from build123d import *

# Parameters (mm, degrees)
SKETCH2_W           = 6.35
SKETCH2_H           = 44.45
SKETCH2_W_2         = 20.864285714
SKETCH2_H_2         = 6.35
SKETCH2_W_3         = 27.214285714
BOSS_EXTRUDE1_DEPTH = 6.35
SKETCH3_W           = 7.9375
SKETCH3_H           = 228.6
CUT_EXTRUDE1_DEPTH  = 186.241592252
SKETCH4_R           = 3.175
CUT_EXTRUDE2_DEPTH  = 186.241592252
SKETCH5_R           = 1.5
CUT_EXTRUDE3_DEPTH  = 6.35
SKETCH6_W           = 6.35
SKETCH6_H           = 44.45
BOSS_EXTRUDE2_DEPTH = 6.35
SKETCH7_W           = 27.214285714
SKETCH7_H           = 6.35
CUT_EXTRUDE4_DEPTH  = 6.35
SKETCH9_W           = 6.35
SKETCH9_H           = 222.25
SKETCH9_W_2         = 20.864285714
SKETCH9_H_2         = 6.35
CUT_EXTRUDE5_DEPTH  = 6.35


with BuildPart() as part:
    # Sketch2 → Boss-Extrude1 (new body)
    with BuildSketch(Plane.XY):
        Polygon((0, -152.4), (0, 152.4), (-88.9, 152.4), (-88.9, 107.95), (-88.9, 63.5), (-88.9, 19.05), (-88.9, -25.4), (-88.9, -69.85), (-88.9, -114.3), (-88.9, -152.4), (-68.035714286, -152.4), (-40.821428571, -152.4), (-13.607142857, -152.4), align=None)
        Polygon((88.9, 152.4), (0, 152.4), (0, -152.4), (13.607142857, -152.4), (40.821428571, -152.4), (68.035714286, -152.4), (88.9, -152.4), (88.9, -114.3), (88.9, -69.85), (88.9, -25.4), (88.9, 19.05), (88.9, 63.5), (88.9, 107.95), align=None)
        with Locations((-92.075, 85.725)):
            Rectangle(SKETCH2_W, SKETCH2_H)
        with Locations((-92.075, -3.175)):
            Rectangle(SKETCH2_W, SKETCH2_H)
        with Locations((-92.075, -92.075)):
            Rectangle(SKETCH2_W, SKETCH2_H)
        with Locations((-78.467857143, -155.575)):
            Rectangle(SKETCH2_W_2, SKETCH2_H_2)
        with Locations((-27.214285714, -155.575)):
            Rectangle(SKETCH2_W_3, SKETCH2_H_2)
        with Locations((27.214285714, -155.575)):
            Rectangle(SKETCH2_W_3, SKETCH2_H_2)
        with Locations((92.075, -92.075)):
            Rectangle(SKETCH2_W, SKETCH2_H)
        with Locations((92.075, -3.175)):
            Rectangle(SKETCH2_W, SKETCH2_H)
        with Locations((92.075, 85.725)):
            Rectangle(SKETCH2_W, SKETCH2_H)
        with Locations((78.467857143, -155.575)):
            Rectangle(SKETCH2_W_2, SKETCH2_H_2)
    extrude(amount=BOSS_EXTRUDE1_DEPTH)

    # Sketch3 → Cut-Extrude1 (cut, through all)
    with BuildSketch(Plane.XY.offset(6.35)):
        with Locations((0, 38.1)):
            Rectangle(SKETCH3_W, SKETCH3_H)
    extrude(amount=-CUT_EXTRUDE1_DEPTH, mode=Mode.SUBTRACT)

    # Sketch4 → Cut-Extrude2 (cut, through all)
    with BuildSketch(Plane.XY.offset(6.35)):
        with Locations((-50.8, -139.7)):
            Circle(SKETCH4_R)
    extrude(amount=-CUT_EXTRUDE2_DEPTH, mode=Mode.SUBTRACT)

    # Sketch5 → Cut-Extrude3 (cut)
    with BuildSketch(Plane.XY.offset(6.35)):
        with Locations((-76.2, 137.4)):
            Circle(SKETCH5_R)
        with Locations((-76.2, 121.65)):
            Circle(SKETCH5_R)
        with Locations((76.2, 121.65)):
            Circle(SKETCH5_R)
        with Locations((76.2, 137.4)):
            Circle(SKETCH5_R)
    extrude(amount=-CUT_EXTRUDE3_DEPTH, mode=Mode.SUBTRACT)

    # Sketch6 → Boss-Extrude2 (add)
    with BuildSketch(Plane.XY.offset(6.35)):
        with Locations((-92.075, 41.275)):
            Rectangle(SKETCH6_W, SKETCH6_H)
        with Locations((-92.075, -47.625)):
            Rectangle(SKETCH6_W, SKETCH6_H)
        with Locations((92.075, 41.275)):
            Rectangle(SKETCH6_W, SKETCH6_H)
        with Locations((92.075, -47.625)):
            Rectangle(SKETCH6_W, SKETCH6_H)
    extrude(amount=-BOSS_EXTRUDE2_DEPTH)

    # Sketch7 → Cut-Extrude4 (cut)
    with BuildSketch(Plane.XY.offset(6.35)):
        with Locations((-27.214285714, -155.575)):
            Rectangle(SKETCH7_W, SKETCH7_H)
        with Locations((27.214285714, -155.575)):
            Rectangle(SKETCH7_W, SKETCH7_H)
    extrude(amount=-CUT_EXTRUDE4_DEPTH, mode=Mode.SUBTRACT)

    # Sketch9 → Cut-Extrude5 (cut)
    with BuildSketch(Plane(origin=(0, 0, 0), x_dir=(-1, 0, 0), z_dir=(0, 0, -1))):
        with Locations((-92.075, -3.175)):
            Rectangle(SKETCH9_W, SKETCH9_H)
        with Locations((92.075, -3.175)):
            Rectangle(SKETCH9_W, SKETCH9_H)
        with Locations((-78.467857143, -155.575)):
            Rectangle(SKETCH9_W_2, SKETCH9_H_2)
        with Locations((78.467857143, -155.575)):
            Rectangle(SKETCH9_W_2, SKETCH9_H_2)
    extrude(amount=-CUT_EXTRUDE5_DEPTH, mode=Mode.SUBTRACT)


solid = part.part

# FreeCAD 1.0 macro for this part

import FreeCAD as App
import Part
import Sketcher

V = App.Vector
Q = App.Units.Quantity

doc = App.newDocument("Part")
body = doc.addObject("PartDesign::Body", "Body")

sketch1 = doc.addObject("Sketcher::SketchObject", "Sketch")
body.addObject(sketch1)
sketch1.AttachmentSupport = (doc.XY_Plane, [""])
sketch1.MapMode = "FlatFace"
sketch1.addGeometry([
    Part.LineSegment(V(-89, 152, 0), V(-89, 108, 0)),
    Part.LineSegment(V(-89, 108, 0), V(-95, 108, 0)),
    Part.LineSegment(V(-95, 108, 0), V(-95, 64, 0)),
    Part.LineSegment(V(-95, 64, 0), V(-89, 64, 0)),
    Part.LineSegment(V(-89, 64, 0), V(-89, 19, 0)),
    Part.LineSegment(V(-89, 19, 0), V(-95, 19, 0)),
    Part.LineSegment(V(-95, 19, 0), V(-95, -25, 0)),
    Part.LineSegment(V(-95, -25, 0), V(-89, -25, 0)),
    Part.LineSegment(V(-89, -25, 0), V(-89, -70, 0)),
    Part.LineSegment(V(-89, -70, 0), V(-95, -70, 0)),
    Part.LineSegment(V(-95, -70, 0), V(-95, -114, 0)),
    Part.LineSegment(V(-95, -114, 0), V(-89, -114, 0)),
    Part.LineSegment(V(-89, -114, 0), V(-89, -159, 0)),
    Part.LineSegment(V(-89, -159, 0), V(-68, -159, 0)),
    Part.LineSegment(V(-68, -159, 0), V(-68, -152, 0)),
    Part.LineSegment(V(-68, -152, 0), V(-41, -152, 0)),
    Part.LineSegment(V(-41, -152, 0), V(-41, -159, 0)),
    Part.LineSegment(V(-41, -159, 0), V(-14, -159, 0)),
    Part.LineSegment(V(-14, -159, 0), V(-14, -152, 0)),
    Part.LineSegment(V(-14, -152, 0), V(14, -152, 0)),
    Part.LineSegment(V(14, -152, 0), V(14, -159, 0)),
    Part.LineSegment(V(14, -159, 0), V(41, -159, 0)),
    Part.LineSegment(V(41, -159, 0), V(41, -152, 0)),
    Part.LineSegment(V(41, -152, 0), V(68, -152, 0)),
    Part.LineSegment(V(68, -152, 0), V(68, -159, 0)),
    Part.LineSegment(V(68, -159, 0), V(89, -159, 0)),
    Part.LineSegment(V(89, -159, 0), V(89, -114, 0)),
    Part.LineSegment(V(89, -114, 0), V(95, -114, 0)),
    Part.LineSegment(V(95, -114, 0), V(95, -70, 0)),
    Part.LineSegment(V(95, -70, 0), V(89, -70, 0)),
    Part.LineSegment(V(89, -70, 0), V(89, -25, 0)),
    Part.LineSegment(V(89, -25, 0), V(95, -25, 0)),
    Part.LineSegment(V(95, -25, 0), V(95, 19, 0)),
    Part.LineSegment(V(95, 19, 0), V(89, 19, 0)),
    Part.LineSegment(V(89, 19, 0), V(89, 64, 0)),
    Part.LineSegment(V(89, 64, 0), V(95, 64, 0)),
    Part.LineSegment(V(95, 64, 0), V(95, 108, 0)),
    Part.LineSegment(V(95, 108, 0), V(89, 108, 0)),
    Part.LineSegment(V(89, 108, 0), V(89, 152, 0)),
    Part.LineSegment(V(89, 152, 0), V(-89, 152, 0)),
], False)
sketch1.addConstraint([
    Sketcher.Constraint("Coincident", 0, 2, 1, 1),
    Sketcher.Constraint("Coincident", 1, 2, 2, 1),
    Sketcher.Constraint("Coincident", 2, 2, 3, 1),
    Sketcher.Constraint("Coincident", 3, 2, 4, 1),
    Sketcher.Constraint("Coincident", 4, 2, 5, 1),
    Sketcher.Constraint("Coincident", 5, 2, 6, 1),
    Sketcher.Constraint("Coincident", 6, 2, 7, 1),
    Sketcher.Constraint("Coincident", 7, 2, 8, 1),
    Sketcher.Constraint("Coincident", 8, 2, 9, 1),
    Sketcher.Constraint("Coincident", 9, 2, 10, 1),
    Sketcher.Constraint("Coincident", 10, 2, 11, 1),
    Sketcher.Constraint("Coincident", 11, 2, 12, 1),
    Sketcher.Constraint("Coincident", 12, 2, 13, 1),
    Sketcher.Constraint("Coincident", 13, 2, 14, 1),
    Sketcher.Constraint("Coincident", 14, 2, 15, 1),
    Sketcher.Constraint("Coincident", 15, 2, 16, 1),
    Sketcher.Constraint("Coincident", 16, 2, 17, 1),
    Sketcher.Constraint("Coincident", 17, 2, 18, 1),
    Sketcher.Constraint("Coincident", 18, 2, 19, 1),
    Sketcher.Constraint("Coincident", 19, 2, 20, 1),
    Sketcher.Constraint("Coincident", 20, 2, 21, 1),
    Sketcher.Constraint("Coincident", 21, 2, 22, 1),
    Sketcher.Constraint("Coincident", 22, 2, 23, 1),
    Sketcher.Constraint("Coincident", 23, 2, 24, 1),
    Sketcher.Constraint("Coincident", 24, 2, 25, 1),
    Sketcher.Constraint("Coincident", 25, 2, 26, 1),
    Sketcher.Constraint("Coincident", 26, 2, 27, 1),
    Sketcher.Constraint("Coincident", 27, 2, 28, 1),
    Sketcher.Constraint("Coincident", 28, 2, 29, 1),
    Sketcher.Constraint("Coincident", 29, 2, 30, 1),
    Sketcher.Constraint("Coincident", 30, 2, 31, 1),
    Sketcher.Constraint("Coincident", 31, 2, 32, 1),
    Sketcher.Constraint("Coincident", 32, 2, 33, 1),
    Sketcher.Constraint("Coincident", 33, 2, 34, 1),
    Sketcher.Constraint("Coincident", 34, 2, 35, 1),
    Sketcher.Constraint("Coincident", 35, 2, 36, 1),
    Sketcher.Constraint("Coincident", 36, 2, 37, 1),
    Sketcher.Constraint("Coincident", 37, 2, 38, 1),
    Sketcher.Constraint("Coincident", 38, 2, 39, 1),
    Sketcher.Constraint("Coincident", 39, 2, 0, 1),
    Sketcher.Constraint("Vertical", 0),
    Sketcher.Constraint("Horizontal", 1),
    Sketcher.Constraint("Vertical", 2),
    Sketcher.Constraint("Horizontal", 3),
    Sketcher.Constraint("Vertical", 4),
    Sketcher.Constraint("Horizontal", 5),
    Sketcher.Constraint("Vertical", 6),
    Sketcher.Constraint("Horizontal", 7),
    Sketcher.Constraint("Vertical", 8),
    Sketcher.Constraint("Horizontal", 9),
    Sketcher.Constraint("Vertical", 10),
    Sketcher.Constraint("Horizontal", 11),
    Sketcher.Constraint("Vertical", 12),
    Sketcher.Constraint("Horizontal", 13),
    Sketcher.Constraint("Vertical", 14),
    Sketcher.Constraint("Horizontal", 15),
    Sketcher.Constraint("Vertical", 16),
    Sketcher.Constraint("Horizontal", 17),
    Sketcher.Constraint("Vertical", 18),
    Sketcher.Constraint("Horizontal", 19),
    Sketcher.Constraint("Vertical", 20),
    Sketcher.Constraint("Horizontal", 21),
    Sketcher.Constraint("Vertical", 22),
    Sketcher.Constraint("Horizontal", 23),
    Sketcher.Constraint("Vertical", 24),
    Sketcher.Constraint("Horizontal", 25),
    Sketcher.Constraint("Vertical", 26),
    Sketcher.Constraint("Horizontal", 27),
    Sketcher.Constraint("Vertical", 28),
    Sketcher.Constraint("Horizontal", 29),
    Sketcher.Constraint("Vertical", 30),
    Sketcher.Constraint("Horizontal", 31),
    Sketcher.Constraint("Vertical", 32),
    Sketcher.Constraint("Horizontal", 33),
    Sketcher.Constraint("Vertical", 34),
    Sketcher.Constraint("Horizontal", 35),
    Sketcher.Constraint("Vertical", 36),
    Sketcher.Constraint("Horizontal", 37),
    Sketcher.Constraint("Vertical", 38),
    Sketcher.Constraint("Horizontal", 39),
    Sketcher.Constraint("Symmetric", 17, 2, 20, 2, -2),
    Sketcher.Constraint("Symmetric", 15, 2, 22, 2, -2),
    Sketcher.Constraint("Symmetric", 13, 2, 24, 2, -2),
    Sketcher.Constraint("Symmetric", 11, 2, 26, 2, -2),
    Sketcher.Constraint("Symmetric", 9, 2, 28, 2, -2),
    Sketcher.Constraint("Symmetric", 7, 2, 30, 2, -2),
    Sketcher.Constraint("Symmetric", 5, 2, 32, 2, -2),
    Sketcher.Constraint("Symmetric", 3, 2, 34, 2, -2),
    Sketcher.Constraint("Symmetric", 1, 2, 36, 2, -2),
    Sketcher.Constraint("Horizontal", 13, 2, 16, 2),
    Sketcher.Constraint("Horizontal", 15, 2, 18, 2),
    Sketcher.Constraint("Vertical", 0, 2, 3, 2),
    Sketcher.Constraint("Vertical", 2, 2, 5, 2),
    Sketcher.Constraint("Vertical", 4, 2, 7, 2),
    Sketcher.Constraint("Vertical", 6, 2, 9, 2),
    Sketcher.Constraint("Vertical", 8, 2, 11, 2),
    Sketcher.Constraint("Vertical", 34, 2, 37, 2),
    Sketcher.Constraint("Equal", 15, 17),
    Sketcher.Constraint("Equal", 17, 19),
    Sketcher.Constraint("Equal", 0, 2),
    Sketcher.Constraint("Equal", 2, 4),
    Sketcher.Constraint("Equal", 4, 6),
    Sketcher.Constraint("Equal", 6, 8),
    Sketcher.Constraint("Equal", 8, 10),
    Sketcher.Constraint("Equal", 10, 12),
    Sketcher.Constraint("Equal", 37, 14),
    Sketcher.Constraint("DistanceX", 39, 2, 39, 1, Q("7 in")),
    Sketcher.Constraint("DistanceY", 6, 2, -1, 1, Q("1 in")),
    Sketcher.Constraint("DistanceY", 14, 2, -1, 1, Q("6 in")),
    Sketcher.Constraint("DistanceY", -1, 1, 38, 2, Q("6 in")),
    Sketcher.Constraint("DistanceX", 13, 1, 13, 2, 20.864286),
])
pad1 = doc.addObject("PartDesign::Pad", "Pad")
body.addObject(pad1)
pad1.Profile = sketch1
pad1.Length = Q("0.25 in")

sketch2 = doc.addObject("Sketcher::SketchObject", "Sketch001")
body.addObject(sketch2)
sketch2.AttachmentSupport = (doc.XY_Plane, [""])
sketch2.MapMode = "FlatFace"
sketch2.AttachmentOffset = App.Placement(V(0, 0, 0.25 * 25.4), App.Rotation())
sketch2.addGeometry([
    Part.LineSegment(V(-4, 152, 0), V(-4, -76, 0)),
    Part.LineSegment(V(-4, -76, 0), V(4, -76, 0)),
    Part.LineSegment(V(4, -76, 0), V(4, 152, 0)),
    Part.LineSegment(V(4, 152, 0), V(-4, 152, 0)),
], False)
sketch2.addConstraint([
    Sketcher.Constraint("Coincident", 0, 2, 1, 1),
    Sketcher.Constraint("Coincident", 1, 2, 2, 1),
    Sketcher.Constraint("Coincident", 2, 2, 3, 1),
    Sketcher.Constraint("Coincident", 3, 2, 0, 1),
    Sketcher.Constraint("Vertical", 0),
    Sketcher.Constraint("Horizontal", 1),
    Sketcher.Constraint("Vertical", 2),
    Sketcher.Constraint("Horizontal", 3),
    Sketcher.Constraint("DistanceY", 0, 2, 0, 1, Q("9 in")),
    Sketcher.Constraint("DistanceY", 0, 2, -1, 1, Q("3 in")),
    Sketcher.Constraint("DistanceX", 1, 1, 1, 2, Q("0.3125 in")),
    Sketcher.Constraint("DistanceX", 0, 2, -1, 1, Q("0.15625 in")),
])
pocket1 = doc.addObject("PartDesign::Pocket", "Pocket")
body.addObject(pocket1)
pocket1.Profile = sketch2
pocket1.Type = "ThroughAll"

sketch3 = doc.addObject("Sketcher::SketchObject", "Sketch002")
body.addObject(sketch3)
sketch3.AttachmentSupport = (doc.XY_Plane, [""])
sketch3.MapMode = "FlatFace"
sketch3.AttachmentOffset = App.Placement(V(0, 0, 0.25 * 25.4), App.Rotation())
sketch3.addGeometry(Part.Circle(V(-50.8, -139.7, 0), V(0, 0, 1), 3.2), False)
sketch3.addConstraint([
    Sketcher.Constraint("Diameter", 0, Q("0.25 in")),
    Sketcher.Constraint("DistanceX", 0, 3, -1, 1, Q("2 in")),
    Sketcher.Constraint("DistanceY", 0, 3, -1, 1, Q("5.5 in")),
])
pocket2 = doc.addObject("PartDesign::Pocket", "Pocket001")
body.addObject(pocket2)
pocket2.Profile = sketch3
pocket2.Type = "ThroughAll"

sketch4 = doc.addObject("Sketcher::SketchObject", "Sketch003")
body.addObject(sketch4)
sketch4.AttachmentSupport = (doc.XY_Plane, [""])
sketch4.MapMode = "FlatFace"
sketch4.AttachmentOffset = App.Placement(V(0, 0, 0.25 * 25.4), App.Rotation())
sketch4.addGeometry([
    Part.Circle(V(-76.2, 137.4, 0), V(0, 0, 1), 1.5),
    Part.Circle(V(-76.2, 121.7, 0), V(0, 0, 1), 1.5),
    Part.Circle(V(76.2, 121.7, 0), V(0, 0, 1), 1.5),
    Part.Circle(V(76.2, 137.4, 0), V(0, 0, 1), 1.5),
], False)
sketch4.addConstraint([
    Sketcher.Constraint("Equal", 0, 1),
    Sketcher.Constraint("Equal", 1, 2),
    Sketcher.Constraint("Equal", 2, 3),
    Sketcher.Constraint("Symmetric", 1, 3, 2, 3, -2),
    Sketcher.Constraint("Symmetric", 0, 3, 3, 3, -2),
    Sketcher.Constraint("Vertical", 0, 3, 1, 3),
    Sketcher.Constraint("DistanceX", 0, 3, -1, 1, Q("3 in")),
    Sketcher.Constraint("Diameter", 0, 3.0),
    Sketcher.Constraint("DistanceY", -1, 1, 0, 3, 137.4),
    Sketcher.Constraint("DistanceY", -1, 1, 1, 3, 121.65),
])
pocket3 = doc.addObject("PartDesign::Pocket", "Pocket002")
body.addObject(pocket3)
pocket3.Profile = sketch4
pocket3.Length = Q("0.25 in")

sketch5 = doc.addObject("Sketcher::SketchObject", "Sketch004")
body.addObject(sketch5)
sketch5.AttachmentSupport = (doc.XY_Plane, [""])
sketch5.MapMode = "FlatFace"
sketch5.AttachmentOffset = App.Placement(V(0, 0, 0.25 * 25.4), App.Rotation())
sketch5.addGeometry([
    Part.LineSegment(V(-95, 64, 0), V(-95, 19, 0)),
    Part.LineSegment(V(-95, 19, 0), V(-89, 19, 0)),
    Part.LineSegment(V(-89, 19, 0), V(-89, 64, 0)),
    Part.LineSegment(V(-89, 64, 0), V(-95, 64, 0)),
    Part.LineSegment(V(-95, -25, 0), V(-95, -70, 0)),
    Part.LineSegment(V(-95, -70, 0), V(-89, -70, 0)),
    Part.LineSegment(V(-89, -70, 0), V(-89, -25, 0)),
    Part.LineSegment(V(-89, -25, 0), V(-95, -25, 0)),
    Part.LineSegment(V(89, 64, 0), V(89, 19, 0)),
    Part.LineSegment(V(89, 19, 0), V(95, 19, 0)),
    Part.LineSegment(V(95, 19, 0), V(95, 64, 0)),
    Part.LineSegment(V(95, 64, 0), V(89, 64, 0)),
    Part.LineSegment(V(89, -25, 0), V(89, -70, 0)),
    Part.LineSegment(V(89, -70, 0), V(95, -70, 0)),
    Part.LineSegment(V(95, -70, 0), V(95, -25, 0)),
    Part.LineSegment(V(95, -25, 0), V(89, -25, 0)),
], False)
sketch5.addConstraint([
    Sketcher.Constraint("Coincident", 0, 2, 1, 1),
    Sketcher.Constraint("Coincident", 1, 2, 2, 1),
    Sketcher.Constraint("Coincident", 2, 2, 3, 1),
    Sketcher.Constraint("Coincident", 3, 2, 0, 1),
    Sketcher.Constraint("Coincident", 4, 2, 5, 1),
    Sketcher.Constraint("Coincident", 5, 2, 6, 1),
    Sketcher.Constraint("Coincident", 6, 2, 7, 1),
    Sketcher.Constraint("Coincident", 7, 2, 4, 1),
    Sketcher.Constraint("Coincident", 8, 2, 9, 1),
    Sketcher.Constraint("Coincident", 9, 2, 10, 1),
    Sketcher.Constraint("Coincident", 10, 2, 11, 1),
    Sketcher.Constraint("Coincident", 11, 2, 8, 1),
    Sketcher.Constraint("Coincident", 12, 2, 13, 1),
    Sketcher.Constraint("Coincident", 13, 2, 14, 1),
    Sketcher.Constraint("Coincident", 14, 2, 15, 1),
    Sketcher.Constraint("Coincident", 15, 2, 12, 1),
    Sketcher.Constraint("Vertical", 0),
    Sketcher.Constraint("Horizontal", 1),
    Sketcher.Constraint("Vertical", 2),
    Sketcher.Constraint("Horizontal", 3),
    Sketcher.Constraint("Vertical", 4),
    Sketcher.Constraint("Horizontal", 5),
    Sketcher.Constraint("Vertical", 6),
    Sketcher.Constraint("Horizontal", 7),
    Sketcher.Constraint("Vertical", 8),
    Sketcher.Constraint("Horizontal", 9),
    Sketcher.Constraint("Vertical", 10),
    Sketcher.Constraint("Horizontal", 11),
    Sketcher.Constraint("Vertical", 12),
    Sketcher.Constraint("Horizontal", 13),
    Sketcher.Constraint("Vertical", 14),
    Sketcher.Constraint("Horizontal", 15),
    Sketcher.Constraint("Symmetric", 1, 2, 8, 2, -2),
    Sketcher.Constraint("Symmetric", 3, 2, 10, 2, -2),
    Sketcher.Constraint("Symmetric", 5, 2, 12, 2, -2),
    Sketcher.Constraint("Symmetric", 7, 2, 14, 2, -2),
    Sketcher.Constraint("Vertical", 3, 2, 4, 2),
    Sketcher.Constraint("Vertical", 2, 2, 5, 2),
    Sketcher.Constraint("Equal", 2, 4),
    Sketcher.Constraint("DistanceY", 6, 2, -1, 1, Q("1 in")),
    Sketcher.Constraint("DistanceX", 1, 2, 8, 2, Q("7 in")),
    Sketcher.Constraint("DistanceX", 1, 1, 1, 2, Q("0.25 in")),
    Sketcher.Constraint("DistanceY", 0, 2, 0, 1, Q("1.75 in")),
    Sketcher.Constraint("DistanceY", -1, 1, 2, 2, Q("2.5 in")),
])
pad2 = doc.addObject("PartDesign::Pad", "Pad001")
body.addObject(pad2)
pad2.Profile = sketch5
pad2.Length = Q("0.25 in")
pad2.Reversed = True

sketch6 = doc.addObject("Sketcher::SketchObject", "Sketch005")
body.addObject(sketch6)
sketch6.AttachmentSupport = (doc.XY_Plane, [""])
sketch6.MapMode = "FlatFace"
sketch6.AttachmentOffset = App.Placement(V(0, 0, 0.25 * 25.4), App.Rotation())
sketch6.addGeometry([
    Part.LineSegment(V(-41, -152, 0), V(-41, -159, 0)),
    Part.LineSegment(V(-41, -159, 0), V(-14, -159, 0)),
    Part.LineSegment(V(-14, -159, 0), V(-14, -152, 0)),
    Part.LineSegment(V(-14, -152, 0), V(-41, -152, 0)),
    Part.LineSegment(V(14, -152, 0), V(14, -159, 0)),
    Part.LineSegment(V(14, -159, 0), V(41, -159, 0)),
    Part.LineSegment(V(41, -159, 0), V(41, -152, 0)),
    Part.LineSegment(V(41, -152, 0), V(14, -152, 0)),
], False)
sketch6.addConstraint([
    Sketcher.Constraint("Coincident", 0, 2, 1, 1),
    Sketcher.Constraint("Coincident", 1, 2, 2, 1),
    Sketcher.Constraint("Coincident", 2, 2, 3, 1),
    Sketcher.Constraint("Coincident", 3, 2, 0, 1),
    Sketcher.Constraint("Coincident", 4, 2, 5, 1),
    Sketcher.Constraint("Coincident", 5, 2, 6, 1),
    Sketcher.Constraint("Coincident", 6, 2, 7, 1),
    Sketcher.Constraint("Coincident", 7, 2, 4, 1),
    Sketcher.Constraint("Vertical", 0),
    Sketcher.Constraint("Horizontal", 1),
    Sketcher.Constraint("Vertical", 2),
    Sketcher.Constraint("Horizontal", 3),
    Sketcher.Constraint("Vertical", 4),
    Sketcher.Constraint("Horizontal", 5),
    Sketcher.Constraint("Vertical", 6),
    Sketcher.Constraint("Horizontal", 7),
    Sketcher.Constraint("Symmetric", 1, 2, 4, 2, -2),
    Sketcher.Constraint("Symmetric", 3, 2, 6, 2, -2),
    Sketcher.Constraint("DistanceY", 2, 2, -1, 1, Q("6 in")),
    Sketcher.Constraint("DistanceY", 0, 2, 0, 1, Q("0.25 in")),
    Sketcher.Constraint("DistanceX", 1, 1, 1, 2, 27.214286),
    Sketcher.Constraint("DistanceX", 0, 2, -1, 1, 40.821429),
])
pocket4 = doc.addObject("PartDesign::Pocket", "Pocket003")
body.addObject(pocket4)
pocket4.Profile = sketch6
pocket4.Length = Q("0.25 in")

sketch7 = doc.addObject("Sketcher::SketchObject", "Sketch006")
body.addObject(sketch7)
sketch7.AttachmentSupport = (doc.XY_Plane, [""])
sketch7.MapMode = "FlatFace"
sketch7.addGeometry([
    Part.LineSegment(V(95, 108, 0), V(95, -114, 0)),
    Part.LineSegment(V(95, -114, 0), V(89, -114, 0)),
    Part.LineSegment(V(89, -114, 0), V(89, 108, 0)),
    Part.LineSegment(V(89, 108, 0), V(95, 108, 0)),
    Part.LineSegment(V(-89, 108, 0), V(-89, -114, 0)),
    Part.LineSegment(V(-89, -114, 0), V(-95, -114, 0)),
    Part.LineSegment(V(-95, -114, 0), V(-95, 108, 0)),
    Part.LineSegment(V(-95, 108, 0), V(-89, 108, 0)),
    Part.LineSegment(V(89, -152, 0), V(89, -159, 0)),
    Part.LineSegment(V(89, -159, 0), V(68, -159, 0)),
    Part.LineSegment(V(68, -159, 0), V(68, -152, 0)),
    Part.LineSegment(V(68, -152, 0), V(89, -152, 0)),
    Part.LineSegment(V(-68, -152, 0), V(-68, -159, 0)),
    Part.LineSegment(V(-68, -159, 0), V(-89, -159, 0)),
    Part.LineSegment(V(-89, -159, 0), V(-89, -152, 0)),
    Part.LineSegment(V(-89, -152, 0), V(-68, -152, 0)),
], False)
sketch7.addConstraint([
    Sketcher.Constraint("Coincident", 0, 2, 1, 1),
    Sketcher.Constraint("Coincident", 1, 2, 2, 1),
    Sketcher.Constraint("Coincident", 2, 2, 3, 1),
    Sketcher.Constraint("Coincident", 3, 2, 0, 1),
    Sketcher.Constraint("Coincident", 4, 2, 5, 1),
    Sketcher.Constraint("Coincident", 5, 2, 6, 1),
    Sketcher.Constraint("Coincident", 6, 2, 7, 1),
    Sketcher.Constraint("Coincident", 7, 2, 4, 1),
    Sketcher.Constraint("Coincident", 8, 2, 9, 1),
    Sketcher.Constraint("Coincident", 9, 2, 10, 1),
    Sketcher.Constraint("Coincident", 10, 2, 11, 1),
    Sketcher.Constraint("Coincident", 11, 2, 8, 1),
    Sketcher.Constraint("Coincident", 12, 2, 13, 1),
    Sketcher.Constraint("Coincident", 13, 2, 14, 1),
    Sketcher.Constraint("Coincident", 14, 2, 15, 1),
    Sketcher.Constraint("Coincident", 15, 2, 12, 1),
    Sketcher.Constraint("Vertical", 0),
    Sketcher.Constraint("Horizontal", 1),
    Sketcher.Constraint("Vertical", 2),
    Sketcher.Constraint("Horizontal", 3),
    Sketcher.Constraint("Vertical", 4),
    Sketcher.Constraint("Horizontal", 5),
    Sketcher.Constraint("Vertical", 6),
    Sketcher.Constraint("Horizontal", 7),
    Sketcher.Constraint("Vertical", 8),
    Sketcher.Constraint("Horizontal", 9),
    Sketcher.Constraint("Vertical", 10),
    Sketcher.Constraint("Horizontal", 11),
    Sketcher.Constraint("Vertical", 12),
    Sketcher.Constraint("Horizontal", 13),
    Sketcher.Constraint("Vertical", 14),
    Sketcher.Constraint("Horizontal", 15),
    Sketcher.Constraint("Symmetric", 1, 2, 4, 2, -2),
    Sketcher.Constraint("Symmetric", 3, 2, 6, 2, -2),
    Sketcher.Constraint("Symmetric", 9, 2, 12, 2, -2),
    Sketcher.Constraint("Symmetric", 11, 2, 14, 2, -2),
    Sketcher.Constraint("Vertical", 2, 2, 8, 2),
    Sketcher.Constraint("Equal", 7, 8),
    Sketcher.Constraint("DistanceY", 10, 2, -1, 1, Q("6 in")),
    Sketcher.Constraint("DistanceX", 4, 2, 1, 2, Q("7 in")),
    Sketcher.Constraint("DistanceX", 1, 2, 1, 1, Q("0.25 in")),
    Sketcher.Constraint("DistanceY", 0, 2, 0, 1, Q("8.75 in")),
    Sketcher.Constraint("DistanceY", 0, 2, -1, 1, Q("4.5 in")),
    Sketcher.Constraint("DistanceX", 9, 2, 9, 1, 20.864286),
])
pocket5 = doc.addObject("PartDesign::Pocket", "Pocket004")
body.addObject(pocket5)
pocket5.Profile = sketch7
pocket5.Length = Q("0.25 in")
pocket5.Reversed = True

doc.recompute()
